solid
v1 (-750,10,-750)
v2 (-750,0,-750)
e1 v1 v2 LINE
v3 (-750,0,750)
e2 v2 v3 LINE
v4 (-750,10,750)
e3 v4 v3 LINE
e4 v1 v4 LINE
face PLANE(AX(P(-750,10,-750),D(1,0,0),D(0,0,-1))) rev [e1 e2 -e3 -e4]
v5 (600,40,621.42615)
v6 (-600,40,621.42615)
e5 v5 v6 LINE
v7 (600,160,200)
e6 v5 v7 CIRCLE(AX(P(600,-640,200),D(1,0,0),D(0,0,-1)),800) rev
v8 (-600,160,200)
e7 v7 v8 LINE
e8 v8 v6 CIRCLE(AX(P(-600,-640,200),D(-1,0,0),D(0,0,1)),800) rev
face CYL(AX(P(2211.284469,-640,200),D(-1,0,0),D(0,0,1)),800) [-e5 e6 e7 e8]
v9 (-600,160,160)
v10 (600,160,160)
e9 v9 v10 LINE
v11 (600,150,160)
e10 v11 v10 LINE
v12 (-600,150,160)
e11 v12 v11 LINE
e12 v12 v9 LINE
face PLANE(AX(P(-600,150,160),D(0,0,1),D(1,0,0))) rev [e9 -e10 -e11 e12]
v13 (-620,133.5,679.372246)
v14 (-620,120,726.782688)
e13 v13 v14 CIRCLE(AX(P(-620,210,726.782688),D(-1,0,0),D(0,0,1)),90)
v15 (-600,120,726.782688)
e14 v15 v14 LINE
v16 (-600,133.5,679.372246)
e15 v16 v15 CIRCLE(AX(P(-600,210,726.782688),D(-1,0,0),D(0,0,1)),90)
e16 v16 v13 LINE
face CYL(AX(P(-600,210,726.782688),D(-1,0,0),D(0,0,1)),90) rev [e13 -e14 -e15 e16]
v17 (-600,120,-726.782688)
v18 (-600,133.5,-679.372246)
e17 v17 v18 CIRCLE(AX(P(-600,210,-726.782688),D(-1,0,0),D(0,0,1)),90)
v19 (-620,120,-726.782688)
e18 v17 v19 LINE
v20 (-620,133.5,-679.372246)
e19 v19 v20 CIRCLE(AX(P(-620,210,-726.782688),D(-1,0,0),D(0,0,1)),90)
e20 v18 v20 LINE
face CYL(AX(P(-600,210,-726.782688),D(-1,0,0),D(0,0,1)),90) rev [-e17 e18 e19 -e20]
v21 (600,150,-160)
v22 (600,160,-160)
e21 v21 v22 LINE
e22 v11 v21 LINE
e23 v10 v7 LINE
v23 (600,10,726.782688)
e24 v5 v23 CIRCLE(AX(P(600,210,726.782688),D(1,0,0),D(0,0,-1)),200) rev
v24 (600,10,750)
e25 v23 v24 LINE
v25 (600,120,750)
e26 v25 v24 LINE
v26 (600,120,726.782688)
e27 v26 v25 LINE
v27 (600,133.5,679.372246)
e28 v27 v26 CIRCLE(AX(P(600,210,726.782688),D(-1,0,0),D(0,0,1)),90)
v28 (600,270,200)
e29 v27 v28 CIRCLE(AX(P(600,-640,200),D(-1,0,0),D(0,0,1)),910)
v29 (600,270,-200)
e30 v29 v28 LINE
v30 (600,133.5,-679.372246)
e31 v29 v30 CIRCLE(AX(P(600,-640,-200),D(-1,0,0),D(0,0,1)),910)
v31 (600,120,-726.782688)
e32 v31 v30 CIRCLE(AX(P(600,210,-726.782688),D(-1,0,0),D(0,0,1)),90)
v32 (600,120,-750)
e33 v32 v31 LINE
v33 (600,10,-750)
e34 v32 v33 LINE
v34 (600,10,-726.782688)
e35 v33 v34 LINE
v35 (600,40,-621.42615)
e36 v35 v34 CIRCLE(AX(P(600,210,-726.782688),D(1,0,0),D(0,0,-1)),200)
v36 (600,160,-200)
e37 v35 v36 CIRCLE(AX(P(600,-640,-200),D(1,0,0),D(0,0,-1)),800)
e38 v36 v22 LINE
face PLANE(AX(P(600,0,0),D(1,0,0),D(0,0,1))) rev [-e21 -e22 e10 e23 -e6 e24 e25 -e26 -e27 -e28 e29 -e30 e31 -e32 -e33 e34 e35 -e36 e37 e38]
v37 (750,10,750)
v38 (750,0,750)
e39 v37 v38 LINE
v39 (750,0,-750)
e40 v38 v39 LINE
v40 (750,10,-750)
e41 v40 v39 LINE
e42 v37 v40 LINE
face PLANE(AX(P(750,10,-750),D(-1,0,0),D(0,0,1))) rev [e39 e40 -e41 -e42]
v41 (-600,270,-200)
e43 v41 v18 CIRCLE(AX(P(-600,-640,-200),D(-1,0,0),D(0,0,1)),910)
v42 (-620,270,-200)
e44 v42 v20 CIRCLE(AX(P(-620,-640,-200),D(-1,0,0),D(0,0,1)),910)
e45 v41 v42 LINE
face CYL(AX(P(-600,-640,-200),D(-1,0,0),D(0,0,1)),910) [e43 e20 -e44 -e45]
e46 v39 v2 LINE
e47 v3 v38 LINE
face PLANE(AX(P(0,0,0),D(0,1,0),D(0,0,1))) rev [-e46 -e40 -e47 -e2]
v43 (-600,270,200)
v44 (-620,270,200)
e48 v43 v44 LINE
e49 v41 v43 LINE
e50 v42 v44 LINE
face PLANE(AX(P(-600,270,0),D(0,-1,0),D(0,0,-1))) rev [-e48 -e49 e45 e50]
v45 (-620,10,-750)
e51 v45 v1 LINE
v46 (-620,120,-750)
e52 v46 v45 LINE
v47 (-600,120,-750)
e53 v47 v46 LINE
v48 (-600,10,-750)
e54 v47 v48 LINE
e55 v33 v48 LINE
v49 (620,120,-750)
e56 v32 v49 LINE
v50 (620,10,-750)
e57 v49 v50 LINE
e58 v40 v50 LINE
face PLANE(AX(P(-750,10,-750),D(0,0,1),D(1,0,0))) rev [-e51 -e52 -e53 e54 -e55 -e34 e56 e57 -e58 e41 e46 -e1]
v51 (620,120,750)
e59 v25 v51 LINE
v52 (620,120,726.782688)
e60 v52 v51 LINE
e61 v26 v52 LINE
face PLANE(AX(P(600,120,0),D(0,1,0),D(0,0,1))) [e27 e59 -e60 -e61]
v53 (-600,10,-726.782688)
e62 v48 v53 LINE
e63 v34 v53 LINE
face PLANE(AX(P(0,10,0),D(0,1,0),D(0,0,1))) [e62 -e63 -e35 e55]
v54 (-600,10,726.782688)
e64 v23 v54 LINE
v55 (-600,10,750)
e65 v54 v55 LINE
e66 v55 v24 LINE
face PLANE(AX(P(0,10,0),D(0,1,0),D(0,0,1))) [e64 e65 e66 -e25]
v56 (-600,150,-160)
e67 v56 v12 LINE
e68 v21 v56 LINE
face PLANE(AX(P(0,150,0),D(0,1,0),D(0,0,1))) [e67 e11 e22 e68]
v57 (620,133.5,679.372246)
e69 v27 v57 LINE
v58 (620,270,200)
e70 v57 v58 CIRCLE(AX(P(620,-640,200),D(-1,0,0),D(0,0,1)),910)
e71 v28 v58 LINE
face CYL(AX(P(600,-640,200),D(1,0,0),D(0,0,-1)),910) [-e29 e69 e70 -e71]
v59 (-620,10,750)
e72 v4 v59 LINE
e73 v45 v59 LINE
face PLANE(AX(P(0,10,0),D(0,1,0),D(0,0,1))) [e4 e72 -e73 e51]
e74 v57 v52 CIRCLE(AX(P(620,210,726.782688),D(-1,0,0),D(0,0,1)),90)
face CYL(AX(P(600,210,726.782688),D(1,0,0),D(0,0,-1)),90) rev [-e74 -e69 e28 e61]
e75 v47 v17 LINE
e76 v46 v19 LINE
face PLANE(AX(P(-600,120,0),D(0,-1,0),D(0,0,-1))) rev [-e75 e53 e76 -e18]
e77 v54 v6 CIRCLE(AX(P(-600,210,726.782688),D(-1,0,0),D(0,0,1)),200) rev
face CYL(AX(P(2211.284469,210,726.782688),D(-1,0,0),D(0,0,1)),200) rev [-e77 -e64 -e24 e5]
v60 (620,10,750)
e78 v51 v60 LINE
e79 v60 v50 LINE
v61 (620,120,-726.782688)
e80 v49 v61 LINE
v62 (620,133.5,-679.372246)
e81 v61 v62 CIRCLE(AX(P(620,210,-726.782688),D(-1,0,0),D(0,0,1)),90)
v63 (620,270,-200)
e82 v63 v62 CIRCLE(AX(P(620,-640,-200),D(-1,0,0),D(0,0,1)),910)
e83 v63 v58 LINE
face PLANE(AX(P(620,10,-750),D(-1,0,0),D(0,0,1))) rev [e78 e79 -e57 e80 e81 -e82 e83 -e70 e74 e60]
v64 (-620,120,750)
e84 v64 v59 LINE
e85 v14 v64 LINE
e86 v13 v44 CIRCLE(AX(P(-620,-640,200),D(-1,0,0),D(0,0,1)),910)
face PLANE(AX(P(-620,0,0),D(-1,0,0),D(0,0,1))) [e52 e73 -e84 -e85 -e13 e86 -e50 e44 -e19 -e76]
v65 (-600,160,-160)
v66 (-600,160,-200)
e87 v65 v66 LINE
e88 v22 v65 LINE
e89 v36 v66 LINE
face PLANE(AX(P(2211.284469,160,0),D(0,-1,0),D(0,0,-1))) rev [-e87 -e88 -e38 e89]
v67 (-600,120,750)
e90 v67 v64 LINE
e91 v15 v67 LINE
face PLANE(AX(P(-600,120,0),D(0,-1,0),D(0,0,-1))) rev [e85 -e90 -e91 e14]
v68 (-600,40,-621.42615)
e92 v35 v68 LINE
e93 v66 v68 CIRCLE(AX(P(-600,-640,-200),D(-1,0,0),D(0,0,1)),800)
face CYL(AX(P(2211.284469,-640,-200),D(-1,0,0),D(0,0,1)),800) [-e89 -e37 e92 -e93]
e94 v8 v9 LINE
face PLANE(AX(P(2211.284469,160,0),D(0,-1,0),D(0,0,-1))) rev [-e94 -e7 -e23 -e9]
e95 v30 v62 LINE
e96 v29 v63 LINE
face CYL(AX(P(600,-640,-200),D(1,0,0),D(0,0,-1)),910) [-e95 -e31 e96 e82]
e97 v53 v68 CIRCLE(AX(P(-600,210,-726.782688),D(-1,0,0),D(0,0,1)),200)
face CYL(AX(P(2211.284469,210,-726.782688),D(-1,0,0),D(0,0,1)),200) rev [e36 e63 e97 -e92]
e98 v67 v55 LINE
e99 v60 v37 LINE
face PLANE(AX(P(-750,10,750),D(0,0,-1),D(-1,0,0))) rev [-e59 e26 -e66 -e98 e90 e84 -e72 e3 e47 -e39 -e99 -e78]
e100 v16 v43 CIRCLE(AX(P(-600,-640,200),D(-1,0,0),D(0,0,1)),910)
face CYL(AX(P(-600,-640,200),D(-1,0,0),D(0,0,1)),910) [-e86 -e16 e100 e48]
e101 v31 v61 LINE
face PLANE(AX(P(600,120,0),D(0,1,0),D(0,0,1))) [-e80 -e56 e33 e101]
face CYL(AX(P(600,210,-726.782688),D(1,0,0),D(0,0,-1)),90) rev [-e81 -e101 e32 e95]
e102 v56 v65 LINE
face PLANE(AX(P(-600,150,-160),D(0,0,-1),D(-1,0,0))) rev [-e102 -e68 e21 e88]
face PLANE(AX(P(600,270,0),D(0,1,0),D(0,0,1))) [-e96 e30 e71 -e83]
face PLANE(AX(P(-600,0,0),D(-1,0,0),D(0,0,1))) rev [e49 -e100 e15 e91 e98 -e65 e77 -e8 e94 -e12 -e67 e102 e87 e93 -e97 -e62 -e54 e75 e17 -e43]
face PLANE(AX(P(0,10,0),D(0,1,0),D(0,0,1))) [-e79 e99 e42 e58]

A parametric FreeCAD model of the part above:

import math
import FreeCAD as App
import Part
import Sketcher
from FreeCAD import Vector
Q = App.Units.Quantity

doc = App.newDocument("Part")
body = doc.addObject("PartDesign::Body", "Body")

sketch1 = doc.addObject("Sketcher::SketchObject", "Sketch")
body.addObject(sketch1)
sketch1.AttachmentSupport = (doc.XZ_Plane, [""])
sketch1.MapMode = "FlatFace"
sketch1.addGeometry([
    Part.LineSegment(Vector(-750, -750, 0), Vector(-750, 750, 0)),
    Part.LineSegment(Vector(-750, 750, 0), Vector(750, 750, 0)),
    Part.LineSegment(Vector(750, 750, 0), Vector(750, -750, 0)),
    Part.LineSegment(Vector(750, -750, 0), Vector(-750, -750, 0)),
], False)
sketch1.addConstraint([
    Sketcher.Constraint("Coincident", 0, 2, 1, 1),
    Sketcher.Constraint("Coincident", 1, 2, 2, 1),
    Sketcher.Constraint("Coincident", 2, 2, 3, 1),
    Sketcher.Constraint("Coincident", 3, 2, 0, 1),
    Sketcher.Constraint("Vertical", 0),
    Sketcher.Constraint("Horizontal", 1),
    Sketcher.Constraint("Vertical", 2),
    Sketcher.Constraint("Horizontal", 3),
    Sketcher.Constraint("Symmetric", 0, 2, 2, 2, -1, 1),
    Sketcher.Constraint("Equal", 3, 0),
    Sketcher.Constraint("DistanceX", 1, 1, 1, 2, Q("1500 mm")),
])
pad1 = doc.addObject("PartDesign::Pad", "Pad")
body.addObject(pad1)
pad1.Profile = sketch1
pad1.Length = 10
pad1.Reversed = True

sketch2 = doc.addObject("Sketcher::SketchObject", "Sketch001")
body.addObject(sketch2)
sketch2.AttachmentSupport = (doc.YZ_Plane, [""])
sketch2.MapMode = "FlatFace"
sketch2.AttachmentOffset = App.Placement(Vector(0, 0, -620), App.Rotation())
sketch2.addGeometry([
    Part.ArcOfCircle(Part.Circle(Vector(210, -726.782688, 0), Vector(0, 0, 1), 200), math.radians(148.211668), math.radians(180)),
    Part.LineSegment(Vector(10, -726.782688, 0), Vector(10, 726.782688, 0)),
    Part.ArcOfCircle(Part.Circle(Vector(210, 726.782688, 0), Vector(0, 0, 1), 200), math.radians(180), math.radians(211.788335)),
    Part.ArcOfCircle(Part.Circle(Vector(-640, 200, 0), Vector(0, 0, 1), 800), math.radians(0), math.radians(31.78833)),
    Part.LineSegment(Vector(160, 200, 0), Vector(160, -200, 0)),
    Part.ArcOfCircle(Part.Circle(Vector(-640, -200, 0), Vector(0, 0, 1), 800), math.radians(-31.78833), math.radians(0)),
], False)
sketch2.addConstraint([
    Sketcher.Constraint("Tangent", 0, 2, 1, 1),
    Sketcher.Constraint("Tangent", 1, 2, 2, 1),
    Sketcher.Constraint("Tangent", 2, 2, 3, 2),
    Sketcher.Constraint("Tangent", 3, 1, 4, 1),
    Sketcher.Constraint("Tangent", 4, 2, 5, 2),
    Sketcher.Constraint("Tangent", 5, 1, 0, 1),
    Sketcher.Constraint("Vertical", 1),
    Sketcher.Constraint("Vertical", 4),
    Sketcher.Constraint("Equal", 0, 2),
    Sketcher.Constraint("Equal", 3, 5),
    Sketcher.Constraint("Radius", 0, Q("200 mm")),
    Sketcher.Constraint("Radius", 3, Q("800 mm")),
    Sketcher.Constraint("DistanceY", 4, 2, 4, 1, Q("400 mm")),
    Sketcher.Constraint("DistanceX", -1, 1, 0, 3, Q("210 mm")),
    Sketcher.Constraint("DistanceX", 3, 3, -1, 1, Q("640 mm")),
    Sketcher.Constraint("DistanceY", -1, 1, 3, 3, Q("200 mm")),
])
pad2 = doc.addObject("PartDesign::Pad", "Pad001")
body.addObject(pad2)
pad2.Profile = sketch2
pad2.Length = 1240

sketch3 = doc.addObject("Sketcher::SketchObject", "Sketch002")
body.addObject(sketch3)
sketch3.AttachmentSupport = (doc.YZ_Plane, [""])
sketch3.MapMode = "FlatFace"
sketch3.AttachmentOffset = App.Placement(Vector(0, 0, -620), App.Rotation())
sketch3.addGeometry([
    Part.LineSegment(Vector(120, -750, 0), Vector(10, -750, 0)),
    Part.LineSegment(Vector(10, -750, 0), Vector(10, -726.782688, 0)),
    Part.ArcOfCircle(Part.Circle(Vector(210, -726.782688, 0), Vector(0, 0, 1), 200), math.radians(148.211668), math.radians(180)),
    Part.ArcOfCircle(Part.Circle(Vector(-640, -200, 0), Vector(0, 0, 1), 800), math.radians(-31.78833), math.radians(0)),
    Part.LineSegment(Vector(160, -200, 0), Vector(160, 200, 0)),
    Part.ArcOfCircle(Part.Circle(Vector(-640, 200, 0), Vector(0, 0, 1), 800), math.radians(0), math.radians(31.78833)),
    Part.ArcOfCircle(Part.Circle(Vector(210, 726.782688, 0), Vector(0, 0, 1), 200), math.radians(180), math.radians(211.788335)),
    Part.LineSegment(Vector(10, 726.782688, 0), Vector(10, 750, 0)),
    Part.LineSegment(Vector(10, 750, 0), Vector(120, 750, 0)),
    Part.LineSegment(Vector(120, 750, 0), Vector(120, 726.782688, 0)),
    Part.ArcOfCircle(Part.Circle(Vector(210, 726.782688, 0), Vector(0, 0, 1), 90), math.radians(180), math.radians(211.788331)),
    Part.ArcOfCircle(Part.Circle(Vector(-640, 200, 0), Vector(0, 0, 1), 910), math.radians(0), math.radians(31.788331)),
    Part.LineSegment(Vector(270, 200, 0), Vector(270, -200, 0)),
    Part.ArcOfCircle(Part.Circle(Vector(-640, -200, 0), Vector(0, 0, 1), 910), math.radians(-31.788331), math.radians(0)),
    Part.ArcOfCircle(Part.Circle(Vector(210, -726.782688, 0), Vector(0, 0, 1), 90), math.radians(148.211669), math.radians(180)),
    Part.LineSegment(Vector(120, -726.782688, 0), Vector(120, -750, 0)),
], False)
sketch3.addConstraint([
    Sketcher.Constraint("Coincident", 0, 2, 1, 1),
    Sketcher.Constraint("Tangent", 1, 2, 2, 2),
    Sketcher.Constraint("Tangent", 2, 1, 3, 1),
    Sketcher.Constraint("Tangent", 3, 2, 4, 1),
    Sketcher.Constraint("Tangent", 4, 2, 5, 1),
    Sketcher.Constraint("Tangent", 5, 2, 6, 2),
    Sketcher.Constraint("Tangent", 6, 1, 7, 1),
    Sketcher.Constraint("Coincident", 7, 2, 8, 1),
    Sketcher.Constraint("Coincident", 8, 2, 9, 1),
    Sketcher.Constraint("Tangent", 9, 2, 10, 1),
    Sketcher.Constraint("Tangent", 10, 2, 11, 2),
    Sketcher.Constraint("Tangent", 11, 1, 12, 1),
    Sketcher.Constraint("Coincident", 12, 2, 13, 2),
    Sketcher.Constraint("Tangent", 13, 1, 14, 1),
    Sketcher.Constraint("Tangent", 14, 2, 15, 1),
    Sketcher.Constraint("Coincident", 15, 2, 0, 1),
    Sketcher.Constraint("Horizontal", 0),
    Sketcher.Constraint("Vertical", 1),
    Sketcher.Constraint("Vertical", 4),
    Sketcher.Constraint("Vertical", 7),
    Sketcher.Constraint("Horizontal", 8),
    Sketcher.Constraint("Vertical", 9),
    Sketcher.Constraint("Vertical", 12),
    Sketcher.Constraint("Vertical", 15),
    Sketcher.Constraint("Coincident", 10, 3, 6, 3),
    Sketcher.Constraint("Coincident", 11, 3, 5, 3),
    Sketcher.Constraint("Coincident", 13, 3, 3, 3),
    Sketcher.Constraint("Coincident", 14, 3, 2, 3),
    Sketcher.Constraint("Equal", 3, 5),
    Sketcher.Constraint("Equal", 2, 6),
    Sketcher.Constraint("Symmetric", 2, 3, 6, 3, -1),
    Sketcher.Constraint("Equal", 1, 7),
    Sketcher.Constraint("Equal", 4, 12),
    Sketcher.Constraint("Radius", 2, Q("200 mm")),
    Sketcher.Constraint("Radius", 3, Q("800 mm")),
    Sketcher.Constraint("Radius", 10, Q("90 mm")),
    Sketcher.Constraint("DistanceY", 4, 1, 4, 2, Q("400 mm")),
    Sketcher.Constraint("DistanceX", -1, 1, 2, 3, Q("210 mm")),
    Sketcher.Constraint("DistanceX", 3, 3, -1, 1, Q("640 mm")),
    Sketcher.Constraint("DistanceY", 0, 2, -1, 1, Q("750 mm")),
])
pad3 = doc.addObject("PartDesign::Pad", "Pad002")
body.addObject(pad3)
pad3.Profile = sketch3
pad3.Length = 20
doc.recompute()

mirrored = doc.addObject("PartDesign::Mirrored", "Mirrored")
body.addObject(mirrored)
mirrored.Originals = [pad3]
mirrored.MirrorPlane = (doc.YZ_Plane, [""])
body.Tip = mirrored

sketch4 = doc.addObject("Sketcher::SketchObject", "Sketch003")
body.addObject(sketch4)
sketch4.AttachmentSupport = (doc.XZ_Plane, [""])
sketch4.MapMode = "FlatFace"
sketch4.AttachmentOffset = App.Placement(Vector(0, 0, -160), App.Rotation())
sketch4.addGeometry([
    Part.LineSegment(Vector(-600, -160, 0), Vector(-600, 160, 0)),
    Part.LineSegment(Vector(-600, 160, 0), Vector(600, 160, 0)),
    Part.LineSegment(Vector(600, 160, 0), Vector(600, -160, 0)),
    Part.LineSegment(Vector(600, -160, 0), Vector(-600, -160, 0)),
], False)
sketch4.addConstraint([
    Sketcher.Constraint("Coincident", 0, 2, 1, 1),
    Sketcher.Constraint("Coincident", 1, 2, 2, 1),
    Sketcher.Constraint("Coincident", 2, 2, 3, 1),
    Sketcher.Constraint("Coincident", 3, 2, 0, 1),
    Sketcher.Constraint("Vertical", 0),
    Sketcher.Constraint("Horizontal", 1),
    Sketcher.Constraint("Vertical", 2),
    Sketcher.Constraint("Horizontal", 3),
    Sketcher.Constraint("Symmetric", 0, 2, 2, 2, -1, 1),
    Sketcher.Constraint("DistanceX", 1, 1, 1, 2, Q("1200 mm")),
    Sketcher.Constraint("DistanceY", 0, 1, 0, 2, Q("320 mm")),
])
pocket1 = doc.addObject("PartDesign::Pocket", "Pocket")
body.addObject(pocket1)
pocket1.Profile = sketch4
pocket1.Length = 10
pocket1.Reversed = True

doc.recompute()
